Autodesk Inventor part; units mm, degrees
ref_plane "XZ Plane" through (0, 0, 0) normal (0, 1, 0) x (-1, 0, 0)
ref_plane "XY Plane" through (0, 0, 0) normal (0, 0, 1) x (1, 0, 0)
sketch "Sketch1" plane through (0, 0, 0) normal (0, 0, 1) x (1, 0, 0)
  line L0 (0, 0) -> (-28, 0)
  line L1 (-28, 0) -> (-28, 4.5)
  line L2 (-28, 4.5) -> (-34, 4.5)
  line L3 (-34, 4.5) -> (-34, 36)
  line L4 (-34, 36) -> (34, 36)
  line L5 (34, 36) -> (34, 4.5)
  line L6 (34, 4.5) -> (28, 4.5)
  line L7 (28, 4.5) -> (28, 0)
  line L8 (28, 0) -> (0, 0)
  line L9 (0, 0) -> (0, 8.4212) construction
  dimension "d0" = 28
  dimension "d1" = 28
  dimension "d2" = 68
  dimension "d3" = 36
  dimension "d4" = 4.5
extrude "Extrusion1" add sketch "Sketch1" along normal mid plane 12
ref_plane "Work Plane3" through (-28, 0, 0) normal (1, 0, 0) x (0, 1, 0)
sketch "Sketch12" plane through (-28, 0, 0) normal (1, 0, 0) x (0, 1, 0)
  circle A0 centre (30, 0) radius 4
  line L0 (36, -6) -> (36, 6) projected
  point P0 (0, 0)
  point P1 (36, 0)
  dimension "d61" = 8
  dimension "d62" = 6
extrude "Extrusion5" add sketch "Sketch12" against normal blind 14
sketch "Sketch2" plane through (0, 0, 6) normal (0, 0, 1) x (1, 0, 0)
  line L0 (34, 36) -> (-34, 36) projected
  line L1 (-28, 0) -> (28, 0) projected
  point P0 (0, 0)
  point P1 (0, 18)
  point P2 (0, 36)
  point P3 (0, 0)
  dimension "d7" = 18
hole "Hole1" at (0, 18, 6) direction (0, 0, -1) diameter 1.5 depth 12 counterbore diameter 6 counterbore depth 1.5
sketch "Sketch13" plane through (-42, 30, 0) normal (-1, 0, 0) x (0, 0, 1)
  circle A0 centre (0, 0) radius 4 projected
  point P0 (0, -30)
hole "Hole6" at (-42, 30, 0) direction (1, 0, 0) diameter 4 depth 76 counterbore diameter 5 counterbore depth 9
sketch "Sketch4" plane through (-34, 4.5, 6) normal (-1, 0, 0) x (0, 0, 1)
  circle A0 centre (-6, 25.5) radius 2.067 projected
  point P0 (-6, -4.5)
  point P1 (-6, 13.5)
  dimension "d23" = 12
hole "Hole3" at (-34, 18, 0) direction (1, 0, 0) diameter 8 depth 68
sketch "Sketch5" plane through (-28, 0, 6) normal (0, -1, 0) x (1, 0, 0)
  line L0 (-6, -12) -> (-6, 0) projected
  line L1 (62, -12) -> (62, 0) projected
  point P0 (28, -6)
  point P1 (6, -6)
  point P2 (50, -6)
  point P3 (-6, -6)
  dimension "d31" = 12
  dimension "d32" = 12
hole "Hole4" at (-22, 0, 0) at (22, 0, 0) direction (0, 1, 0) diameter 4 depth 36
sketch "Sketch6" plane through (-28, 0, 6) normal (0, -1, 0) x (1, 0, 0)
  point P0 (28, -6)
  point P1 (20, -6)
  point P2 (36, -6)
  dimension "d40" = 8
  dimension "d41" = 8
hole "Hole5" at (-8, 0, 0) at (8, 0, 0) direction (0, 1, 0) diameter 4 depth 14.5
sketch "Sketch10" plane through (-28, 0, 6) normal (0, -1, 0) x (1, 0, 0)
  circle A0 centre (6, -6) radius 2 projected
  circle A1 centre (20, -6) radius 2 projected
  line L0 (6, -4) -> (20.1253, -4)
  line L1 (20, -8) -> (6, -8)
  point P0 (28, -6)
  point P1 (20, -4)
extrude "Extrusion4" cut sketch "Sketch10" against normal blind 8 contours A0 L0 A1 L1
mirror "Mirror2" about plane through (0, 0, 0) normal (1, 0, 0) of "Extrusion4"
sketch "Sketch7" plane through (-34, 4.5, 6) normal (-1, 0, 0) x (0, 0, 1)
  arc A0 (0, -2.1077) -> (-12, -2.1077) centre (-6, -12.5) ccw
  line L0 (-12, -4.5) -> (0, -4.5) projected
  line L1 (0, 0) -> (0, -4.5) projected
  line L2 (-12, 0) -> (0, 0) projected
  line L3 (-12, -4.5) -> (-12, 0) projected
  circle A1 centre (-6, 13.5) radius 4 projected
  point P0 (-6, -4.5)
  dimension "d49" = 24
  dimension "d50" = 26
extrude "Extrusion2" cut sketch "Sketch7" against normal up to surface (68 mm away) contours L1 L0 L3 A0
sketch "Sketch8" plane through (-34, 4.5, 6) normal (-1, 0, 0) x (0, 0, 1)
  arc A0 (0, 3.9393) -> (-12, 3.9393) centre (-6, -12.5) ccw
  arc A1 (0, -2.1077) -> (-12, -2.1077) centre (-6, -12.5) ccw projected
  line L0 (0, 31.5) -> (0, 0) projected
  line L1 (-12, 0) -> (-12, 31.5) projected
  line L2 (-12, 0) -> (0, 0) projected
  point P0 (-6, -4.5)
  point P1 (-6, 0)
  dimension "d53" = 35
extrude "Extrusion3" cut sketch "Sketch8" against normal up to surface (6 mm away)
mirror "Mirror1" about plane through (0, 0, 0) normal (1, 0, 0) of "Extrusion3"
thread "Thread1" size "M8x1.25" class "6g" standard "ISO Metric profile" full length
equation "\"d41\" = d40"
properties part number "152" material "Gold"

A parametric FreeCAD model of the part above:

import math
import FreeCAD as App
import Part
import Sketcher
Q = App.Units.Quantity

doc = App.newDocument("Part")
body = doc.addObject("PartDesign::Body", "Body")

sketch1 = body.newObject("Sketcher::SketchObject", "Sketch")
sketch1.AttachmentSupport = (doc.getObject("XY_Plane"), [""])
sketch1.MapMode = "FlatFace"
sketch1.addGeometry(Part.LineSegment(App.Vector(-28, 0, 0), App.Vector(28, 0, 0)), False)
sketch1.addGeometry(Part.LineSegment(App.Vector(28, 0, 0), App.Vector(28, 4.5, 0)), False)
sketch1.addGeometry(Part.LineSegment(App.Vector(28, 4.5, 0), App.Vector(34, 4.5, 0)), False)
sketch1.addGeometry(Part.LineSegment(App.Vector(34, 4.5, 0), App.Vector(34, 36, 0)), False)
sketch1.addGeometry(Part.LineSegment(App.Vector(34, 36, 0), App.Vector(-34, 36, 0)), False)
sketch1.addGeometry(Part.LineSegment(App.Vector(-34, 36, 0), App.Vector(-34, 4.5, 0)), False)
sketch1.addGeometry(Part.LineSegment(App.Vector(-34, 4.5, 0), App.Vector(-28, 4.5, 0)), False)
sketch1.addGeometry(Part.LineSegment(App.Vector(-28, 4.5, 0), App.Vector(-28, 0, 0)), False)
sketch1.addConstraint(Sketcher.Constraint("Coincident", 0, 2, 1, 1))
sketch1.addConstraint(Sketcher.Constraint("Coincident", 1, 2, 2, 1))
sketch1.addConstraint(Sketcher.Constraint("Coincident", 2, 2, 3, 1))
sketch1.addConstraint(Sketcher.Constraint("Coincident", 3, 2, 4, 1))
sketch1.addConstraint(Sketcher.Constraint("Coincident", 4, 2, 5, 1))
sketch1.addConstraint(Sketcher.Constraint("Coincident", 5, 2, 6, 1))
sketch1.addConstraint(Sketcher.Constraint("Coincident", 6, 2, 7, 1))
sketch1.addConstraint(Sketcher.Constraint("Coincident", 7, 2, 0, 1))
sketch1.addConstraint(Sketcher.Constraint("Horizontal", 0))
sketch1.addConstraint(Sketcher.Constraint("Vertical", 1))
sketch1.addConstraint(Sketcher.Constraint("Horizontal", 2))
sketch1.addConstraint(Sketcher.Constraint("Vertical", 3))
sketch1.addConstraint(Sketcher.Constraint("Horizontal", 4))
sketch1.addConstraint(Sketcher.Constraint("Vertical", 5))
sketch1.addConstraint(Sketcher.Constraint("Horizontal", 6))
sketch1.addConstraint(Sketcher.Constraint("Vertical", 7))
sketch1.addConstraint(Sketcher.Constraint("Symmetric", 0, 2, 7, 2, -1, 1))
sketch1.addConstraint(Sketcher.Constraint("Symmetric", 2, 2, 5, 2, -2))
sketch1.addConstraint(Sketcher.Constraint("DistanceX", 4, 2, 4, 1, Q("68 mm")))
sketch1.addConstraint(Sketcher.Constraint("DistanceY", 1, 1, 1, 2, Q("4.5 mm")))
sketch1.addConstraint(Sketcher.Constraint("DistanceX", -1, 1, 0, 2, Q("28 mm")))
sketch1.addConstraint(Sketcher.Constraint("DistanceY", -1, 1, 3, 2, Q("36 mm")))
pad1 = body.newObject("PartDesign::Pad", "Pad")
pad1.Profile = sketch1
pad1.Length = 12
pad1.Midplane = True

sketch2 = body.newObject("Sketcher::SketchObject", "Sketch001")
sketch2.AttachmentSupport = (doc.getObject("YZ_Plane"), [""])
sketch2.MapMode = "FlatFace"
sketch2.AttachmentOffset = App.Placement(App.Vector(0, 0, -28), App.Rotation())
sketch2.addGeometry(Part.Circle(App.Vector(30, 0, 0), App.Vector(0, 0, 1), 4), False)
sketch2.addConstraint(Sketcher.Constraint("PointOnObject", 0, 3, -1))
sketch2.addConstraint(Sketcher.Constraint("Diameter", 0, Q("8 mm")))
sketch2.addConstraint(Sketcher.Constraint("DistanceX", -1, 1, 0, 3, Q("30 mm")))
pad2 = body.newObject("PartDesign::Pad", "Pad001")
pad2.Profile = sketch2
pad2.Length = 14
pad2.Reversed = True

sketch3 = body.newObject("Sketcher::SketchObject", "Sketch002")
sketch3.AttachmentSupport = (doc.getObject("XY_Plane"), [""])
sketch3.MapMode = "FlatFace"
sketch3.AttachmentOffset = App.Placement(App.Vector(0, 0, 6), App.Rotation())
sketch3.addGeometry(Part.Circle(App.Vector(0, 18, 0), App.Vector(0, 0, 1), 0.8), False)
sketch3.addConstraint(Sketcher.Constraint("PointOnObject", 0, 3, -2))
sketch3.addConstraint(Sketcher.Constraint("Diameter", 0, Q("1.5 mm")))
sketch3.addConstraint(Sketcher.Constraint("DistanceY", -1, 1, 0, 3, Q("18 mm")))
doc.recompute()
hole = body.newObject("PartDesign::Hole", "Hole")
hole.Profile = sketch3
hole.ThreadType = "None"
hole.Diameter = 1.5
hole.DepthType = "Dimension"
hole.Depth = 12
hole.DrillPoint = "Flat"
hole.HoleCutType = "Counterbore"
hole.HoleCutDiameter = 6
hole.HoleCutDepth = 1.5

sketch4 = body.newObject("Sketcher::SketchObject", "Sketch003")
sketch4.AttachmentSupport = (doc.getObject("YZ_Plane"), [""])
sketch4.MapMode = "FlatFace"
sketch4.AttachmentOffset = App.Placement(App.Vector(0, 0, -42), App.Rotation())
sketch4.addGeometry(Part.Circle(App.Vector(30, 0, 0), App.Vector(0, 0, 1), 2), False)
sketch4.addConstraint(Sketcher.Constraint("PointOnObject", 0, 3, -1))
sketch4.addConstraint(Sketcher.Constraint("Diameter", 0, Q("4 mm")))
sketch4.addConstraint(Sketcher.Constraint("DistanceX", -1, 1, 0, 3, Q("30 mm")))
doc.recompute()
hole2 = body.newObject("PartDesign::Hole", "Hole001")
hole2.Profile = sketch4
hole2.ThreadType = "None"
hole2.Diameter = 4
hole2.DepthType = "Dimension"
hole2.Depth = 76
hole2.DrillPoint = "Flat"
hole2.HoleCutType = "Counterbore"
hole2.HoleCutDiameter = 5
hole2.HoleCutDepth = 9
hole2.Reversed = True

sketch5 = body.newObject("Sketcher::SketchObject", "Sketch004")
sketch5.AttachmentSupport = (doc.getObject("YZ_Plane"), [""])
sketch5.MapMode = "FlatFace"
sketch5.AttachmentOffset = App.Placement(App.Vector(0, 0, -34), App.Rotation())
sketch5.addGeometry(Part.Circle(App.Vector(18, 0, 0), App.Vector(0, 0, 1), 4), False)
sketch5.addConstraint(Sketcher.Constraint("PointOnObject", 0, 3, -1))
sketch5.addConstraint(Sketcher.Constraint("Diameter", 0, Q("8 mm")))
sketch5.addConstraint(Sketcher.Constraint("DistanceX", -1, 1, 0, 3, Q("18 mm")))
doc.recompute()
hole3 = body.newObject("PartDesign::Hole", "Hole002")
hole3.Profile = sketch5
hole3.ThreadType = "None"
hole3.Diameter = 8
hole3.DepthType = "Dimension"
hole3.Depth = 68
hole3.DrillPoint = "Flat"
hole3.Reversed = True

sketch6 = body.newObject("Sketcher::SketchObject", "Sketch005")
sketch6.AttachmentSupport = (doc.getObject("XZ_Plane"), [""])
sketch6.MapMode = "FlatFace"
sketch6.addGeometry(Part.Circle(App.Vector(-22, 0, 0), App.Vector(0, 0, 1), 2), False)
sketch6.addGeometry(Part.Circle(App.Vector(22, 0, 0), App.Vector(0, 0, 1), 2), False)
sketch6.addConstraint(Sketcher.Constraint("Equal", 0, 1))
sketch6.addConstraint(Sketcher.Constraint("Symmetric", 0, 3, 1, 3, -1, 1))
sketch6.addConstraint(Sketcher.Constraint("PointOnObject", 0, 3, -1))
sketch6.addConstraint(Sketcher.Constraint("Diameter", 0, Q("4 mm")))
sketch6.addConstraint(Sketcher.Constraint("DistanceX", 0, 3, -1, 1, Q("22 mm")))
doc.recompute()
hole4 = body.newObject("PartDesign::Hole", "Hole003")
hole4.Profile = sketch6
hole4.ThreadType = "None"
hole4.Diameter = 4
hole4.DepthType = "Dimension"
hole4.Depth = 36
hole4.DrillPoint = "Flat"

sketch7 = body.newObject("Sketcher::SketchObject", "Sketch006")
sketch7.AttachmentSupport = (doc.getObject("XZ_Plane"), [""])
sketch7.MapMode = "FlatFace"
sketch7.addGeometry(Part.Circle(App.Vector(-8, 0, 0), App.Vector(0, 0, 1), 2), False)
sketch7.addGeometry(Part.Circle(App.Vector(8, 0, 0), App.Vector(0, 0, 1), 2), False)
sketch7.addConstraint(Sketcher.Constraint("Equal", 0, 1))
sketch7.addConstraint(Sketcher.Constraint("Symmetric", 0, 3, 1, 3, -1, 1))
sketch7.addConstraint(Sketcher.Constraint("PointOnObject", 0, 3, -1))
sketch7.addConstraint(Sketcher.Constraint("Diameter", 0, Q("4 mm")))
sketch7.addConstraint(Sketcher.Constraint("DistanceX", 0, 3, -1, 1, Q("8 mm")))
doc.recompute()
hole5 = body.newObject("PartDesign::Hole", "Hole004")
hole5.Profile = sketch7
hole5.ThreadType = "None"
hole5.Diameter = 4
hole5.DepthType = "Dimension"
hole5.Depth = 14.5
hole5.DrillPoint = "Flat"

sketch8 = body.newObject("Sketcher::SketchObject", "Sketch007")
sketch8.AttachmentSupport = (doc.getObject("XZ_Plane"), [""])
sketch8.MapMode = "FlatFace"
sketch8.addGeometry(Part.ArcOfCircle(Part.Circle(App.Vector(-22, 0, 0), App.Vector(0, 0, 1), 2), math.radians(-90), math.radians(90)), False)
sketch8.addGeometry(Part.LineSegment(App.Vector(-22, -2, 0), App.Vector(-8, -2, 0)), False)
sketch8.addGeometry(Part.ArcOfCircle(Part.Circle(App.Vector(-8, 0, 0), App.Vector(0, 0, 1), 2), math.radians(90), math.radians(270)), False)
sketch8.addGeometry(Part.LineSegment(App.Vector(-8, 2, 0), App.Vector(-22, 2, 0)), False)
sketch8.addConstraint(Sketcher.Constraint("Tangent", 0, 1, 1, 1))
sketch8.addConstraint(Sketcher.Constraint("Tangent", 1, 2, 2, 2))
sketch8.addConstraint(Sketcher.Constraint("Tangent", 2, 1, 3, 1))
sketch8.addConstraint(Sketcher.Constraint("Tangent", 3, 2, 0, 2))
sketch8.addConstraint(Sketcher.Constraint("Horizontal", 1))
sketch8.addConstraint(Sketcher.Constraint("Horizontal", 3))
sketch8.addConstraint(Sketcher.Constraint("PointOnObject", 0, 3, -1))
sketch8.addConstraint(Sketcher.Constraint("Radius", 0, Q("2 mm")))
sketch8.addConstraint(Sketcher.Constraint("DistanceX", 1, 1, 1, 2, Q("14 mm")))
sketch8.addConstraint(Sketcher.Constraint("DistanceX", 0, 3, -1, 1, Q("22 mm")))
pocket1 = body.newObject("PartDesign::Pocket", "Pocket")
pocket1.Profile = sketch8
pocket1.Length = 8
doc.recompute()

mirrored = body.newObject("PartDesign::Mirrored", "Mirrored")
mirrored.Originals = [pocket1]
mirrored.MirrorPlane = (doc.getObject("YZ_Plane"), [""])
body.Tip = mirrored

sketch9 = body.newObject("Sketcher::SketchObject", "Sketch008")
sketch9.AttachmentSupport = (doc.getObject("YZ_Plane"), [""])
sketch9.MapMode = "FlatFace"
sketch9.AttachmentOffset = App.Placement(App.Vector(0, 0, -34), App.Rotation())
sketch9.addGeometry(Part.LineSegment(App.Vector(0, 6, 0), App.Vector(2.4, 6, 0)), False)
sketch9.addGeometry(Part.ArcOfCircle(Part.Circle(App.Vector(-8, 0, 0), App.Vector(0, 0, 1), 12), math.radians(-30), math.radians(30)), False)
sketch9.addGeometry(Part.LineSegment(App.Vector(2.4, -6, 0), App.Vector(0, -6, 0)), False)
sketch9.addGeometry(Part.LineSegment(App.Vector(0, -6, 0), App.Vector(0, 6, 0)), False)
sketch9.addConstraint(Sketcher.Constraint("Coincident", 0, 2, 1, 2))
sketch9.addConstraint(Sketcher.Constraint("Coincident", 1, 1, 2, 1))
sketch9.addConstraint(Sketcher.Constraint("Coincident", 2, 2, 3, 1))
sketch9.addConstraint(Sketcher.Constraint("Coincident", 3, 2, 0, 1))
sketch9.addConstraint(Sketcher.Constraint("Horizontal", 0))
sketch9.addConstraint(Sketcher.Constraint("Horizontal", 2))
sketch9.addConstraint(Sketcher.Constraint("Vertical", 3))
sketch9.addConstraint(Sketcher.Constraint("Symmetric", 2, 2, 3, 2, -1, 1))
sketch9.addConstraint(Sketcher.Constraint("PointOnObject", 1, 3, -1))
sketch9.addConstraint(Sketcher.Constraint("Radius", 1, Q("12 mm")))
sketch9.addConstraint(Sketcher.Constraint("DistanceY", 3, 1, 3, 2, Q("12 mm")))
sketch9.addConstraint(Sketcher.Constraint("DistanceX", 1, 3, -1, 1, Q("8 mm")))
pocket2 = body.newObject("PartDesign::Pocket", "Pocket001")
pocket2.Profile = sketch9
pocket2.Length = 68
pocket2.Reversed = True

sketch10 = body.newObject("Sketcher::SketchObject", "Sketch009")
sketch10.AttachmentSupport = (doc.getObject("YZ_Plane"), [""])
sketch10.MapMode = "FlatFace"
sketch10.AttachmentOffset = App.Placement(App.Vector(0, 0, -34), App.Rotation())
sketch10.addGeometry(Part.LineSegment(App.Vector(4.5, 6, 0), App.Vector(8.4, 6, 0)), False)
sketch10.addGeometry(Part.ArcOfCircle(Part.Circle(App.Vector(-8, 0, 0), App.Vector(0, 0, 1), 17.5), math.radians(-20), math.radians(20)), False)
sketch10.addGeometry(Part.LineSegment(App.Vector(8.4, -6, 0), App.Vector(4.5, -6, 0)), False)
sketch10.addGeometry(Part.LineSegment(App.Vector(4.5, -6, 0), App.Vector(4.5, 6, 0)), False)
sketch10.addConstraint(Sketcher.Constraint("Coincident", 0, 2, 1, 2))
sketch10.addConstraint(Sketcher.Constraint("Coincident", 1, 1, 2, 1))
sketch10.addConstraint(Sketcher.Constraint("Coincident", 2, 2, 3, 1))
sketch10.addConstraint(Sketcher.Constraint("Coincident", 3, 2, 0, 1))
sketch10.addConstraint(Sketcher.Constraint("Horizontal", 0))
sketch10.addConstraint(Sketcher.Constraint("Horizontal", 2))
sketch10.addConstraint(Sketcher.Constraint("Vertical", 3))
sketch10.addConstraint(Sketcher.Constraint("Symmetric", 0, 2, 1, 1, -1))
sketch10.addConstraint(Sketcher.Constraint("Radius", 1, Q("17.5 mm")))
sketch10.addConstraint(Sketcher.Constraint("DistanceY", 3, 1, 3, 2, Q("12 mm")))
sketch10.addConstraint(Sketcher.Constraint("DistanceX", 1, 3, -1, 1, Q("8 mm")))
sketch10.addConstraint(Sketcher.Constraint("DistanceX", -1, 1, 2, 2, Q("4.5 mm")))
pocket3 = body.newObject("PartDesign::Pocket", "Pocket002")
pocket3.Profile = sketch10
pocket3.Length = 6
pocket3.Reversed = True
doc.recompute()

mirrored2 = body.newObject("PartDesign::Mirrored", "Mirrored001")
mirrored2.Originals = [pocket3]
mirrored2.MirrorPlane = (doc.getObject("YZ_Plane"), [""])
body.Tip = mirrored2

doc.recompute()
